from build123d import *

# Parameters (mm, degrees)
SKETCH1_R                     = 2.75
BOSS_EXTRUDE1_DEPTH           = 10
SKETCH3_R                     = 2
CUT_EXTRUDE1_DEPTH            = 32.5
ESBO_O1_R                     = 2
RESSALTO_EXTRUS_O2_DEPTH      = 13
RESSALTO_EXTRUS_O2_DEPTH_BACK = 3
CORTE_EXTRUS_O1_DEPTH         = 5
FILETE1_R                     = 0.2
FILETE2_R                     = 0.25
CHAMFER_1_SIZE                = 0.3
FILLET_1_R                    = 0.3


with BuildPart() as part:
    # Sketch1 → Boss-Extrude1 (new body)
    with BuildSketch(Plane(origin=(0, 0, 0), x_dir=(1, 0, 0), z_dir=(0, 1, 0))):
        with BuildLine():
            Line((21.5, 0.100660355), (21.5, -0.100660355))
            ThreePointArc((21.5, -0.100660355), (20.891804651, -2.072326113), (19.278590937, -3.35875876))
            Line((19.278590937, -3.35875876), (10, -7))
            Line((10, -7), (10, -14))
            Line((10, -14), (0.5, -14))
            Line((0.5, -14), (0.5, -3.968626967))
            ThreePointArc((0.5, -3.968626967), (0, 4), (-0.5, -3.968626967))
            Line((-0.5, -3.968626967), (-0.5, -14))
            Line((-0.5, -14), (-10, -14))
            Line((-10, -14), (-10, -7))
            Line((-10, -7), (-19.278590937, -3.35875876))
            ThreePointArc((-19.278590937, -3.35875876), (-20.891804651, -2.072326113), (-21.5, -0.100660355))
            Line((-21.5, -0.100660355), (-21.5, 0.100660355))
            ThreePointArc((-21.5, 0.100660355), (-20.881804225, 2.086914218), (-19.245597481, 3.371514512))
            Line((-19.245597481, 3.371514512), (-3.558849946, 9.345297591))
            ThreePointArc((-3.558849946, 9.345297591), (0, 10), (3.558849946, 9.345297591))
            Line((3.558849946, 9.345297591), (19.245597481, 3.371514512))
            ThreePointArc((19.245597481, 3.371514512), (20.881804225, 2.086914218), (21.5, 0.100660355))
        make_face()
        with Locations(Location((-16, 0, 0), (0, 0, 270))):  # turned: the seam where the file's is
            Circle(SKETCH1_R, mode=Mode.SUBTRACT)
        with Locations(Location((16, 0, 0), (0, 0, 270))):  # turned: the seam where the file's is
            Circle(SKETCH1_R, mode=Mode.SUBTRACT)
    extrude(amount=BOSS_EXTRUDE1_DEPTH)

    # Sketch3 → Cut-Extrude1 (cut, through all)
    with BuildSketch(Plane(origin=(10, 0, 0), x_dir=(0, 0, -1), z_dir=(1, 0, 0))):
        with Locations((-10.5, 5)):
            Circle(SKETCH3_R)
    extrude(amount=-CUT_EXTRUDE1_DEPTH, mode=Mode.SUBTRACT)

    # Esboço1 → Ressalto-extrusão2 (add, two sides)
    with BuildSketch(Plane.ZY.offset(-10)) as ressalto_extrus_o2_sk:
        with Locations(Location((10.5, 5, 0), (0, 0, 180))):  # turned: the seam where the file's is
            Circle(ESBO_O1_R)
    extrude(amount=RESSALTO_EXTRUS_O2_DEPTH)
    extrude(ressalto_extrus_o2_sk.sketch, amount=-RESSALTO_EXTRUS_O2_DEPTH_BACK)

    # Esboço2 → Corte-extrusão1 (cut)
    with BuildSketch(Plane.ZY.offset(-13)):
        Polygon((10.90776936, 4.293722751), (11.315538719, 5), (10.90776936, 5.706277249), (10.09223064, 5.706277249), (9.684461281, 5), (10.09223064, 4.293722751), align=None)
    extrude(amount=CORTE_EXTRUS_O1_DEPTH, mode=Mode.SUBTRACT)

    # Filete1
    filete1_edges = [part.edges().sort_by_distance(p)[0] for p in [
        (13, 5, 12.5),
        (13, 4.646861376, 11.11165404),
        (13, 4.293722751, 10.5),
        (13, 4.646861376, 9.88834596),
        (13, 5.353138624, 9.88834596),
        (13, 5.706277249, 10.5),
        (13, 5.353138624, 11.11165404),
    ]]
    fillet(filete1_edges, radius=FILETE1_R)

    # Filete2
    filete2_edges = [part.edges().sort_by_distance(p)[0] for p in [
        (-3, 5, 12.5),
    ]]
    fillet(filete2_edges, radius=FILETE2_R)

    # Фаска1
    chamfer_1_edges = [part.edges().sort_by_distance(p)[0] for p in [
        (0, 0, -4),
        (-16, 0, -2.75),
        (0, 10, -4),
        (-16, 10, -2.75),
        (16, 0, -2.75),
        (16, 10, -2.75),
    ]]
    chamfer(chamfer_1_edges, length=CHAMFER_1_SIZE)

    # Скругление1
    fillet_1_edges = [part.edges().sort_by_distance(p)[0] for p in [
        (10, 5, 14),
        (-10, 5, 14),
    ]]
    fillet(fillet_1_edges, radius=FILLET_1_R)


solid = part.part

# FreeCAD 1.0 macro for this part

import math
import FreeCAD as App
import Part
import Sketcher
Q = App.Units.Quantity


def edges_at(feature, points):
    """Names of the edges that pass closest to the given points."""
    edges = feature.Shape.Edges
    near = lambda p: min(range(len(edges)), key=lambda i: edges[i].distToShape(Part.Vertex(*p))[0])
    return sorted({f"Edge{near(p) + 1}" for p in points})

doc = App.newDocument("Part")
body = doc.addObject("PartDesign::Body", "Body")

# Sketch on XZ plane
sketch1 = body.newObject("Sketcher::SketchObject", "Sketch")
sketch1.AttachmentSupport = (doc.getObject("XZ_Plane"), [""])
sketch1.MapMode = "FlatFace"
sketch1.addGeometry([
    Part.LineSegment(App.Vector(21.5, 0.1, 0), App.Vector(21.5, -0.1, 0)),  # 0
    Part.ArcOfCircle(Part.Circle(App.Vector(18, -0.1, 0), App.Vector(0, 0, 1), 3.5), math.radians(-69), math.radians(0)),  # 1
    Part.LineSegment(App.Vector(19.25, -3.37, 0), App.Vector(3.56, -9.35, 0)),  # 2
    Part.ArcOfCircle(Part.Circle(App.Vector(0, 0, 0), App.Vector(0, 0, 1), 10), math.radians(-111), math.radians(-69)),  # 3
    Part.LineSegment(App.Vector(-3.56, -9.35, 0), App.Vector(-19.25, -3.37, 0)),  # 4
    Part.ArcOfCircle(Part.Circle(App.Vector(-18, -0.1, 0), App.Vector(0, 0, 1), 3.5), math.radians(180), math.radians(249)),  # 5
    Part.LineSegment(App.Vector(-21.5, -0.1, 0), App.Vector(-21.5, 0.1, 0)),  # 6
    Part.ArcOfCircle(Part.Circle(App.Vector(-18, 0.1, 0), App.Vector(0, 0, 1), 3.5), math.radians(111), math.radians(180)),  # 7
    Part.LineSegment(App.Vector(-19.28, 3.36, 0), App.Vector(-10, 7, 0)),  # 8
    Part.LineSegment(App.Vector(-10, 7, 0), App.Vector(-10, 14, 0)),  # 9
    Part.LineSegment(App.Vector(-10, 14, 0), App.Vector(-0.5, 14, 0)),  # 10
    Part.LineSegment(App.Vector(-0.5, 14, 0), App.Vector(-0.5, 3.97, 0)),  # 11
    Part.ArcOfCircle(Part.Circle(App.Vector(0, 0, 0), App.Vector(0, 0, 1), 4), math.radians(97), math.radians(443)),  # 12
    Part.LineSegment(App.Vector(0.5, 3.97, 0), App.Vector(0.5, 14, 0)),  # 13
    Part.LineSegment(App.Vector(0.5, 14, 0), App.Vector(10, 14, 0)),  # 14
    Part.LineSegment(App.Vector(10, 14, 0), App.Vector(10, 7, 0)),  # 15
    Part.LineSegment(App.Vector(10, 7, 0), App.Vector(19.28, 3.36, 0)),  # 16
    Part.ArcOfCircle(Part.Circle(App.Vector(18, 0.1, 0), App.Vector(0, 0, 1), 3.5), math.radians(0), math.radians(69)),  # 17
    Part.Circle(App.Vector(16, 0, 0), App.Vector(0, 0, 1), 2.75),  # 18
    Part.Circle(App.Vector(-16, 0, 0), App.Vector(0, 0, 1), 2.75),  # 19
], False)
sketch1.addConstraint([
    Sketcher.Constraint("Tangent", 0, 2, 1, 2),
    Sketcher.Constraint("Tangent", 1, 1, 2, 1),
    Sketcher.Constraint("Tangent", 2, 2, 3, 2),
    Sketcher.Constraint("Tangent", 3, 1, 4, 1),
    Sketcher.Constraint("Tangent", 4, 2, 5, 2),
    Sketcher.Constraint("Tangent", 5, 1, 6, 1),
    Sketcher.Constraint("Tangent", 6, 2, 7, 2),
    Sketcher.Constraint("Tangent", 7, 1, 8, 1),
    Sketcher.Constraint("Coincident", 8, 2, 9, 1),
    Sketcher.Constraint("Coincident", 9, 2, 10, 1),
    Sketcher.Constraint("Coincident", 10, 2, 11, 1),
    Sketcher.Constraint("Coincident", 11, 2, 12, 1),
    Sketcher.Constraint("Coincident", 12, 2, 13, 1),
    Sketcher.Constraint("Coincident", 13, 2, 14, 1),
    Sketcher.Constraint("Coincident", 14, 2, 15, 1),
    Sketcher.Constraint("Coincident", 15, 2, 16, 1),
    Sketcher.Constraint("Tangent", 16, 2, 17, 2),
    Sketcher.Constraint("Tangent", 17, 1, 0, 1),
    Sketcher.Constraint("Vertical", 0),
    Sketcher.Constraint("Vertical", 6),
    Sketcher.Constraint("Vertical", 9),
    Sketcher.Constraint("Horizontal", 10),
    Sketcher.Constraint("Vertical", 11),
    Sketcher.Constraint("Vertical", 13),
    Sketcher.Constraint("Horizontal", 14),
    Sketcher.Constraint("Vertical", 15),
    Sketcher.Constraint("Coincident", 3, 3, -1, 1),
    Sketcher.Constraint("Coincident", 12, 3, -1, 1),
    Sketcher.Constraint("Equal", 1, 5),
    Sketcher.Constraint("Equal", 5, 7),
    Sketcher.Constraint("Equal", 7, 17),
    Sketcher.Constraint("Equal", 18, 19),
    Sketcher.Constraint("Symmetric", 1, 3, 7, 3, -1, 1),
    Sketcher.Constraint("Symmetric", 18, 3, 19, 3, -1, 1),
    Sketcher.Constraint("Symmetric", 10, 2, 13, 2, -2),
    Sketcher.Constraint("Symmetric", 8, 2, 15, 2, -2),
    Sketcher.Constraint("PointOnObject", 18, 3, -1),
    Sketcher.Constraint("Horizontal", 1, 3, 5, 3),
    Sketcher.Constraint("Horizontal", 7, 3, 17, 3),
    Sketcher.Constraint("Radius", 3, 10.0),
    Sketcher.Constraint("Radius", 12, 4.0),
    Sketcher.Constraint("Diameter", 18, 5.5),
    Sketcher.Constraint("Radius", 1, 3.5),
    Sketcher.Constraint("DistanceY", 9, 1, 9, 2, 7.0),
    Sketcher.Constraint("DistanceX", 10, 1, 10, 2, 9.5),
    Sketcher.Constraint("DistanceX", -1, 1, 1, 3, 18.0),
    Sketcher.Constraint("DistanceX", -1, 1, 18, 3, 16.0),
    Sketcher.Constraint("DistanceX", 8, 2, -1, 1, 10.0),
    Sketcher.Constraint("DistanceY", -1, 1, 8, 2, 7.0),
    Sketcher.Constraint("DistanceY", 0, 2, 0, 1, 0.201321),
])
pad1 = body.newObject("PartDesign::Pad", "Pad")
pad1.Profile = sketch1
pad1.Length = 10
pad1.Reversed = True

# Sketch on YZ plane
sketch2 = body.newObject("Sketcher::SketchObject", "Sketch001")
sketch2.AttachmentSupport = (doc.getObject("YZ_Plane"), [""])
sketch2.MapMode = "FlatFace"
sketch2.AttachmentOffset = App.Placement(App.Vector(0, 0, 10), App.Rotation())
sketch2.addGeometry(Part.Circle(App.Vector(5, 10.5, 0), App.Vector(0, 0, 1), 2), False)
sketch2.addConstraint([
    Sketcher.Constraint("Diameter", 0, 4.0),
    Sketcher.Constraint("DistanceX", -1, 1, 0, 3, 5.0),
    Sketcher.Constraint("DistanceY", -1, 1, 0, 3, 10.5),
])
pocket1 = body.newObject("PartDesign::Pocket", "Pocket")
pocket1.Profile = sketch2
pocket1.Type = "ThroughAll"

# Sketch on YZ plane
sketch3 = body.newObject("Sketcher::SketchObject", "Sketch002")
sketch3.AttachmentSupport = (doc.getObject("YZ_Plane"), [""])
sketch3.MapMode = "FlatFace"
sketch3.AttachmentOffset = App.Placement(App.Vector(0, 0, 10), App.Rotation())
sketch3.addGeometry(Part.Circle(App.Vector(5, 10.5, 0), App.Vector(0, 0, 1), 2), False)
sketch3.addConstraint([
    Sketcher.Constraint("Diameter", 0, 4.0),
    Sketcher.Constraint("DistanceX", -1, 1, 0, 3, 5.0),
    Sketcher.Constraint("DistanceY", -1, 1, 0, 3, 10.5),
])
pad2 = body.newObject("PartDesign::Pad", "Pad001")
pad2.Profile = sketch3
pad2.Type = "TwoLengths"
pad2.Length = 13
pad2.Length2 = 3
pad2.Reversed = True

# Sketch on YZ plane
sketch4 = body.newObject("Sketcher::SketchObject", "Sketch003")
sketch4.AttachmentSupport = (doc.getObject("YZ_Plane"), [""])
sketch4.MapMode = "FlatFace"
sketch4.AttachmentOffset = App.Placement(App.Vector(0, 0, 13), App.Rotation())
sketch4.addGeometry([
    Part.LineSegment(App.Vector(4.3, 10.9, 0), App.Vector(5, 11.3, 0)),  # 0
    Part.LineSegment(App.Vector(5, 11.3, 0), App.Vector(5.7, 10.9, 0)),  # 1
    Part.LineSegment(App.Vector(5.7, 10.9, 0), App.Vector(5.7, 10.1, 0)),  # 2
    Part.LineSegment(App.Vector(5.7, 10.1, 0), App.Vector(5, 9.7, 0)),  # 3
    Part.LineSegment(App.Vector(5, 9.7, 0), App.Vector(4.3, 10.1, 0)),  # 4
    Part.LineSegment(App.Vector(4.3, 10.1, 0), App.Vector(4.3, 10.9, 0)),  # 5
], False)
sketch4.addConstraint([
    Sketcher.Constraint("Coincident", 0, 2, 1, 1),
    Sketcher.Constraint("Coincident", 1, 2, 2, 1),
    Sketcher.Constraint("Coincident", 2, 2, 3, 1),
    Sketcher.Constraint("Coincident", 3, 2, 4, 1),
    Sketcher.Constraint("Coincident", 4, 2, 5, 1),
    Sketcher.Constraint("Coincident", 5, 2, 0, 1),
    Sketcher.Constraint("Vertical", 2),
    Sketcher.Constraint("Vertical", 5),
    Sketcher.Constraint("Parallel", 0, 3),
    Sketcher.Constraint("Parallel", 1, 4),
    Sketcher.Constraint("Horizontal", 2, 2, 4, 2),
    Sketcher.Constraint("Horizontal", 1, 2, 5, 2),
    Sketcher.Constraint("Vertical", 0, 2, 3, 2),
    Sketcher.Constraint("Angle", 0, Q("30 deg")),
    Sketcher.Constraint("DistanceX", -1, 1, 0, 2, 5.0),
    Sketcher.Constraint("DistanceY", 2, 2, 2, 1, 0.815539),
    Sketcher.Constraint("Distance", 0, 0.815539),
    Sketcher.Constraint("DistanceY", -1, 1, 0, 2, 11.315539),
])
pocket2 = body.newObject("PartDesign::Pocket", "Pocket001")
pocket2.Profile = sketch4
pocket2.Length = 5
doc.recompute()

fillet = body.newObject("PartDesign::Fillet", "Fillet")
fillet.Base = (pocket2, edges_at(pocket2, [
    (13, 5, 12.5),
    (13, 4.647, 11.112),
    (13, 4.294, 10.5),
    (13, 4.647, 9.888),
    (13, 5.353, 9.888),
    (13, 5.706, 10.5),
    (13, 5.353, 11.112),
]))
fillet.Radius = 0.2
doc.recompute()

fillet2 = body.newObject("PartDesign::Fillet", "Fillet001")
fillet2.Base = (fillet, edges_at(fillet, [(-3, 5, 12.5)]))
fillet2.Radius = 0.25
doc.recompute()

chamfer = body.newObject("PartDesign::Chamfer", "Chamfer")
chamfer.Base = (fillet2, edges_at(fillet2, [
    (0, 0, -4),
    (-16, 0, -2.75),
    (0, 10, -4),
    (-16, 10, -2.75),
    (16, 0, -2.75),
    (16, 10, -2.75),
]))
chamfer.Size = 0.3
doc.recompute()

fillet3 = body.newObject("PartDesign::Fillet", "Fillet002")
fillet3.Base = (chamfer, edges_at(chamfer, [(10, 5, 14), (-10, 5, 14)]))
fillet3.Radius = 0.3

doc.recompute()
